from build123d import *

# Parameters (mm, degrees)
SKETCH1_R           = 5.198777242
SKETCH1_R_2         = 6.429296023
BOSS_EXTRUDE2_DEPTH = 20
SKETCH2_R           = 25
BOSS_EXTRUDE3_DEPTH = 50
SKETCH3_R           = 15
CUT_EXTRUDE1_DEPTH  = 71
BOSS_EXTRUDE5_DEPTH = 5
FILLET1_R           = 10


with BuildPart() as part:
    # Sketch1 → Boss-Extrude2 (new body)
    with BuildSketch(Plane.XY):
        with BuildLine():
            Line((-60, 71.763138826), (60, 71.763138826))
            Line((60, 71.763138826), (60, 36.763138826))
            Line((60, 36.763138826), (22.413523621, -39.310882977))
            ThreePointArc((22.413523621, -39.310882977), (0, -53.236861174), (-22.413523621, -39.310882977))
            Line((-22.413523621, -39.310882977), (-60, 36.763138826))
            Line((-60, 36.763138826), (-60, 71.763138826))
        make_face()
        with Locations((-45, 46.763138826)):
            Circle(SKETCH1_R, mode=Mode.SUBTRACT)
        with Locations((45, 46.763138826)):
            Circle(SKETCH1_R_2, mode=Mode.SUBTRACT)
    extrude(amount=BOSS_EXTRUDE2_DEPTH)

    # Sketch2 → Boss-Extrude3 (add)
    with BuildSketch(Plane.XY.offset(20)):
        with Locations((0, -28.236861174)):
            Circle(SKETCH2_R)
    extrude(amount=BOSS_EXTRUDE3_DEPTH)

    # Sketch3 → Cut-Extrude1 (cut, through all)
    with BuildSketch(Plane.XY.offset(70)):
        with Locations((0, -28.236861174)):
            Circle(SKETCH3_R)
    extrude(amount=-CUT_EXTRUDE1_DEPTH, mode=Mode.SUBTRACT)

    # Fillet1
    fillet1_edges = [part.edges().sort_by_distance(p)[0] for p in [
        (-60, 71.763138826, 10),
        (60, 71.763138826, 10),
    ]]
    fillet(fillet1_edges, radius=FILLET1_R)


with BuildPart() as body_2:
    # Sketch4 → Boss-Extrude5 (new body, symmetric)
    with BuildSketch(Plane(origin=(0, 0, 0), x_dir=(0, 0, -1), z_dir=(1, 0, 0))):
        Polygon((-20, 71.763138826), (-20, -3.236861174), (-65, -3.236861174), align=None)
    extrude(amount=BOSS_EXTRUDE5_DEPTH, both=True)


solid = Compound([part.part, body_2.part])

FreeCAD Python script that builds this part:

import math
import FreeCAD as App
import Part
import Sketcher

V = App.Vector


def edges_at(feature, points):
    """Names of the edges that pass closest to the given points."""
    edges = feature.Shape.Edges
    near = lambda p: min(range(len(edges)), key=lambda i: edges[i].distToShape(Part.Vertex(*p))[0])
    return sorted({f"Edge{near(p) + 1}" for p in points})

doc = App.newDocument("Part")
body = doc.addObject("PartDesign::Body", "Body")

sketch1 = body.newObject("Sketcher::SketchObject", "Sketch")
sketch1.AttachmentSupport = (doc.getObject("XY_Plane"), [""])
sketch1.MapMode = "FlatFace"
sketch1.addGeometry([
    Part.LineSegment(V(60, 72, 0), V(-60, 72, 0)),
    Part.LineSegment(V(-60, 72, 0), V(-60, 37, 0)),
    Part.LineSegment(V(-60, 37, 0), V(-22, -39, 0)),
    Part.ArcOfCircle(Part.Circle(V(0, -28, 0), V(0, 0, 1), 25), math.radians(-154), math.radians(-26)),
    Part.LineSegment(V(22, -39, 0), V(60, 37, 0)),
    Part.LineSegment(V(60, 37, 0), V(60, 72, 0)),
    Part.Circle(V(45, 47, 0), V(0, 0, 1), 6),
    Part.Circle(V(-45, 47, 0), V(0, 0, 1), 5),
], False)
sketch1.addConstraint([
    Sketcher.Constraint("Coincident", 0, 2, 1, 1),
    Sketcher.Constraint("Coincident", 1, 2, 2, 1),
    Sketcher.Constraint("Tangent", 2, 2, 3, 1),
    Sketcher.Constraint("Tangent", 3, 2, 4, 1),
    Sketcher.Constraint("Coincident", 4, 2, 5, 1),
    Sketcher.Constraint("Coincident", 5, 2, 0, 1),
    Sketcher.Constraint("Horizontal", 0),
    Sketcher.Constraint("Vertical", 1),
    Sketcher.Constraint("Vertical", 5),
    Sketcher.Constraint("Symmetric", 6, 3, 7, 3, -2),
    Sketcher.Constraint("Symmetric", 2, 2, 3, 2, -2),
    Sketcher.Constraint("Horizontal", 1, 2, 4, 2),
    Sketcher.Constraint("Radius", 3, 25.0),
    Sketcher.Constraint("DistanceX", 0, 2, 0, 1, 120.0),
    Sketcher.Constraint("DistanceY", 1, 2, 1, 1, 35.0),
    Sketcher.Constraint("DistanceX", -1, 1, 6, 3, 45.0),
    Sketcher.Constraint("DistanceY", 3, 3, 6, 3, 75.0),
    Sketcher.Constraint("DistanceY", 7, 3, 0, 2, 25.0),
    Sketcher.Constraint("Diameter", 6, 12.858592),
    Sketcher.Constraint("Diameter", 7, 10.397554),
    Sketcher.Constraint("DistanceY", 3, 3, -1, 1, 28.236861),
])
pad1 = body.newObject("PartDesign::Pad", "Pad")
pad1.Profile = sketch1
pad1.Length = 20

sketch2 = body.newObject("Sketcher::SketchObject", "Sketch001")
sketch2.AttachmentSupport = (doc.getObject("XY_Plane"), [""])
sketch2.MapMode = "FlatFace"
sketch2.AttachmentOffset = App.Placement(V(0, 0, 20), App.Rotation())
sketch2.addGeometry(Part.Circle(V(0, -28, 0), V(0, 0, 1), 25), False)
sketch2.addConstraint([
    Sketcher.Constraint("PointOnObject", 0, 3, -2),
    Sketcher.Constraint("Diameter", 0, 50.0),
    Sketcher.Constraint("DistanceY", 0, 3, -1, 1, 28.236861),
])
pad2 = body.newObject("PartDesign::Pad", "Pad001")
pad2.Profile = sketch2
pad2.Length = 50

sketch3 = body.newObject("Sketcher::SketchObject", "Sketch002")
sketch3.AttachmentSupport = (doc.getObject("XY_Plane"), [""])
sketch3.MapMode = "FlatFace"
sketch3.AttachmentOffset = App.Placement(V(0, 0, 70), App.Rotation())
sketch3.addGeometry(Part.Circle(V(0, -28, 0), V(0, 0, 1), 15), False)
sketch3.addConstraint([
    Sketcher.Constraint("PointOnObject", 0, 3, -2),
    Sketcher.Constraint("Diameter", 0, 30.0),
    Sketcher.Constraint("DistanceY", 0, 3, -1, 1, 28.236861),
])
pocket1 = body.newObject("PartDesign::Pocket", "Pocket")
pocket1.Profile = sketch3
pocket1.Type = "ThroughAll"
doc.recompute()

fillet = body.newObject("PartDesign::Fillet", "Fillet")
fillet.Base = (pocket1, edges_at(pocket1, [(-60, 71.763, 10), (60, 71.763, 10)]))
fillet.Radius = 10
body2 = doc.addObject("PartDesign::Body", "Body001")

sketch4 = body2.newObject("Sketcher::SketchObject", "Sketch003")
sketch4.AttachmentSupport = (doc.getObject("YZ_Plane001"), [""])
sketch4.MapMode = "FlatFace"
sketch4.addGeometry([
    Part.LineSegment(V(-3, 20, 0), V(72, 20, 0)),
    Part.LineSegment(V(72, 20, 0), V(-3, 65, 0)),
    Part.LineSegment(V(-3, 65, 0), V(-3, 20, 0)),
], False)
sketch4.addConstraint([
    Sketcher.Constraint("Coincident", 0, 2, 1, 1),
    Sketcher.Constraint("Coincident", 1, 2, 2, 1),
    Sketcher.Constraint("Coincident", 2, 2, 0, 1),
    Sketcher.Constraint("Horizontal", 0),
    Sketcher.Constraint("Vertical", 2),
    Sketcher.Constraint("DistanceX", 0, 1, 0, 2, 75.0),
    Sketcher.Constraint("DistanceY", 2, 2, 2, 1, 45.0),
    Sketcher.Constraint("DistanceY", -1, 1, 0, 2, 20.0),
    Sketcher.Constraint("DistanceX", -1, 1, 0, 2, 71.763139),
])
pad3 = body2.newObject("PartDesign::Pad", "Pad002")
pad3.Profile = sketch4
pad3.Length = 10
pad3.Midplane = True

doc.recompute()
